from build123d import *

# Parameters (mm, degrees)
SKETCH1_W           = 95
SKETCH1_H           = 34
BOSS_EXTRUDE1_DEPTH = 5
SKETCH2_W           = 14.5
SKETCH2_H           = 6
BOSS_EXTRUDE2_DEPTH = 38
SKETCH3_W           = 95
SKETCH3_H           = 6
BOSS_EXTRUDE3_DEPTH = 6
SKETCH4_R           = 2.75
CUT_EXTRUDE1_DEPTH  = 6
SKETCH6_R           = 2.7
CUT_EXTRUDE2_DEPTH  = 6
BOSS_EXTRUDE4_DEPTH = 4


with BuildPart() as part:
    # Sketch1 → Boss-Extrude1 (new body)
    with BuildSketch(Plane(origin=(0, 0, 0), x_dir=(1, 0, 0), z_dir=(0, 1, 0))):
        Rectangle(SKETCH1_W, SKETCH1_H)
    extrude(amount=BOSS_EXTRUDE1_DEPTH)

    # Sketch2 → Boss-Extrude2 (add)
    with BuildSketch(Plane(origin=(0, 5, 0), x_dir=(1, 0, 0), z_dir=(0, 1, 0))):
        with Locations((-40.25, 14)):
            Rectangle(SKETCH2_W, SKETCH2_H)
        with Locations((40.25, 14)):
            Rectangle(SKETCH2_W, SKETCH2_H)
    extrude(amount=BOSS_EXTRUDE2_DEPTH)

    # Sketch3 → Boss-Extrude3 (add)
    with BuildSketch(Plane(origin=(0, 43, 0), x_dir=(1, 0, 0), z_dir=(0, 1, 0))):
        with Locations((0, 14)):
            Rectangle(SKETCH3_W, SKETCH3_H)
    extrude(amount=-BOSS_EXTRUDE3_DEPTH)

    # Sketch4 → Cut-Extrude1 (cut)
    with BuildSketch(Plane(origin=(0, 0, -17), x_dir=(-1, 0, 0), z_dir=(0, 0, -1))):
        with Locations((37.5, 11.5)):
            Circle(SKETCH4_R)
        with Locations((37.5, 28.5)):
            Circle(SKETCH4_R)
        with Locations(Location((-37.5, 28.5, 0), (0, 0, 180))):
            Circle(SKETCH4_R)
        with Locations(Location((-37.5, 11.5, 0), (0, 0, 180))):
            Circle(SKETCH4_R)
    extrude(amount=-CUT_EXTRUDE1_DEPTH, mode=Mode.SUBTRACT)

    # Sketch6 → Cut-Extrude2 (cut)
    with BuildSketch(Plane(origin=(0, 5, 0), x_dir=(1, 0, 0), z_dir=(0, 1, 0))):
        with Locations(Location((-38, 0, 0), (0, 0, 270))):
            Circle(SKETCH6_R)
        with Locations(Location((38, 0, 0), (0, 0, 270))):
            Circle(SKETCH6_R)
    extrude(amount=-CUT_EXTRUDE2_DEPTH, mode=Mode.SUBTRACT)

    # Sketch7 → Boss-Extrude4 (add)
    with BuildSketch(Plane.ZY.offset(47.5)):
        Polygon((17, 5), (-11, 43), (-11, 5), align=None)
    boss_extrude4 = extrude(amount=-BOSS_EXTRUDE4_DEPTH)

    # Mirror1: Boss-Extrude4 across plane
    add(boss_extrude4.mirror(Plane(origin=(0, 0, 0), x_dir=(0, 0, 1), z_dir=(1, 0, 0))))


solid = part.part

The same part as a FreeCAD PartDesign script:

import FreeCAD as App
import Part
import Sketcher
from FreeCAD import Vector
Q = App.Units.Quantity


def add_polygon(sketch, points):
    """Adds a closed chain of lines whose ends are joined by coincident constraints."""
    first, n = sketch.GeometryCount, len(points)
    for a, b in zip(points, points[1:] + points[:1]):
        sketch.addGeometry(Part.LineSegment(App.Vector(*a, 0), App.Vector(*b, 0)), False)
    for i in range(n):
        sketch.addConstraint(Sketcher.Constraint("Coincident", first + i, 2, first + (i + 1) % n, 1))

doc = App.newDocument("Part")
params = doc.addObject("Spreadsheet::Sheet", "Params")
for row, (alias, value) in enumerate([
    ("sketch1_width", "95 mm"),
    ("sketch1_height", "34 mm"),
    ("pad1_length", "5 mm"),
    ("sketch2_height", "6 mm"),
    ("sketch2_width", "14.5 mm"),
    ("pad2_length", "38 mm"),
    ("sketch3_width", "95 mm"),
    ("sketch3_height", "6 mm"),
    ("pad3_length", "6 mm"),
    ("sketch4_diameter", "5.5 mm"),
    ("pocket1_length", "6 mm"),
    ("sketch5_diameter", "5.4 mm"),
    ("pocket2_length", "6 mm"),
    ("sketch6_width", "38 mm"),
    ("sketch6_height", "28 mm"),
    ("pad4_length", "4 mm"),
], start=1):
    params.set(f"A{row}", alias)
    params.set(f"B{row}", "=" + value)
    params.setAlias(f"B{row}", alias)

body = doc.addObject("PartDesign::Body", "Body")

# Sketch on XZ plane
sketch1 = body.newObject("Sketcher::SketchObject", "Sketch")
sketch1.AttachmentSupport = (doc.getObject("XZ_Plane"), [""])
sketch1.MapMode = "FlatFace"
add_polygon(sketch1, [(-48, -17), (-48, 17), (48, 17), (48, -17)])  # lines 0-3
sketch1.addConstraint(Sketcher.Constraint("Vertical", 0))
sketch1.addConstraint(Sketcher.Constraint("Horizontal", 1))
sketch1.addConstraint(Sketcher.Constraint("Vertical", 2))
sketch1.addConstraint(Sketcher.Constraint("Horizontal", 3))
sketch1.addConstraint(Sketcher.Constraint("Symmetric", 0, 2, 2, 2, -1, 1))
sketch1.addConstraint(Sketcher.Constraint("DistanceX", 1, 1, 1, 2, Q("95 mm")))
sketch1.addConstraint(Sketcher.Constraint("DistanceY", 0, 1, 0, 2, Q("34 mm")))
sketch1.setExpression("Constraints[9]", "Params.sketch1_width")
sketch1.setExpression("Constraints[10]", "Params.sketch1_height")
pad1 = body.newObject("PartDesign::Pad", "Pad")
pad1.Profile = sketch1
pad1.setExpression("Length", "Params.pad1_length")
pad1.Reversed = True

# Sketch on XZ plane
sketch2 = body.newObject("Sketcher::SketchObject", "Sketch001")
sketch2.AttachmentSupport = (doc.getObject("XZ_Plane"), [""])
sketch2.MapMode = "FlatFace"
sketch2.AttachmentOffset = App.Placement(Vector(0, 0, -5), App.Rotation())
add_polygon(sketch2, [(-48, -17), (-48, -11), (-33, -11), (-33, -17)])  # lines 0-3
add_polygon(sketch2, [(33, -17), (33, -11), (48, -11), (48, -17)])  # lines 4-7
sketch2.addConstraint(Sketcher.Constraint("Vertical", 0))
sketch2.addConstraint(Sketcher.Constraint("Horizontal", 1))
sketch2.addConstraint(Sketcher.Constraint("Vertical", 2))
sketch2.addConstraint(Sketcher.Constraint("Horizontal", 3))
sketch2.addConstraint(Sketcher.Constraint("Vertical", 4))
sketch2.addConstraint(Sketcher.Constraint("Horizontal", 5))
sketch2.addConstraint(Sketcher.Constraint("Vertical", 6))
sketch2.addConstraint(Sketcher.Constraint("Horizontal", 7))
sketch2.addConstraint(Sketcher.Constraint("Symmetric", 1, 2, 4, 2, -2))
sketch2.addConstraint(Sketcher.Constraint("Symmetric", 3, 2, 6, 2, -2))
sketch2.addConstraint(Sketcher.Constraint("DistanceY", 0, 1, 0, 2, Q("6 mm")))
sketch2.addConstraint(Sketcher.Constraint("DistanceX", 1, 1, 1, 2, Q("14.5 mm")))
sketch2.addConstraint(Sketcher.Constraint("DistanceY", 0, 2, -1, 1, Q("11 mm")))
sketch2.addConstraint(Sketcher.Constraint("DistanceX", 1, 2, -1, 1, Q("33 mm")))
sketch2.setExpression("Constraints[18]", "Params.sketch2_height")
sketch2.setExpression("Constraints[19]", "Params.sketch2_width")
pad2 = body.newObject("PartDesign::Pad", "Pad001")
pad2.Profile = sketch2
pad2.setExpression("Length", "Params.pad2_length")
pad2.Reversed = True

# Sketch on XZ plane
sketch3 = body.newObject("Sketcher::SketchObject", "Sketch002")
sketch3.AttachmentSupport = (doc.getObject("XZ_Plane"), [""])
sketch3.MapMode = "FlatFace"
sketch3.AttachmentOffset = App.Placement(Vector(0, 0, -43), App.Rotation())
add_polygon(sketch3, [(-48, -17), (-48, -11), (48, -11), (48, -17)])  # lines 0-3
sketch3.addConstraint(Sketcher.Constraint("Vertical", 0))
sketch3.addConstraint(Sketcher.Constraint("Horizontal", 1))
sketch3.addConstraint(Sketcher.Constraint("Vertical", 2))
sketch3.addConstraint(Sketcher.Constraint("Horizontal", 3))
sketch3.addConstraint(Sketcher.Constraint("DistanceX", 1, 1, 1, 2, Q("95 mm")))
sketch3.addConstraint(Sketcher.Constraint("DistanceY", 0, 1, 0, 2, Q("6 mm")))
sketch3.addConstraint(Sketcher.Constraint("DistanceY", 0, 2, -1, 1, Q("11 mm")))
sketch3.addConstraint(Sketcher.Constraint("DistanceX", 0, 2, -1, 1, Q("47.5 mm")))
sketch3.setExpression("Constraints[8]", "Params.sketch3_width")
sketch3.setExpression("Constraints[9]", "Params.sketch3_height")
pad3 = body.newObject("PartDesign::Pad", "Pad002")
pad3.Profile = sketch3
pad3.setExpression("Length", "Params.pad3_length")

# Sketch on XY plane
sketch4 = body.newObject("Sketcher::SketchObject", "Sketch003")
sketch4.AttachmentSupport = (doc.getObject("XY_Plane"), [""])
sketch4.MapMode = "FlatFace"
sketch4.AttachmentOffset = App.Placement(Vector(0, 0, -17), App.Rotation())
sketch4.addGeometry(Part.Circle(Vector(-37.5, 11.5, 0), Vector(0, 0, 1), 2.8), False)
sketch4.addGeometry(Part.Circle(Vector(-37.5, 28.5, 0), Vector(0, 0, 1), 2.8), False)
sketch4.addGeometry(Part.Circle(Vector(37.5, 28.5, 0), Vector(0, 0, 1), 2.8), False)
sketch4.addGeometry(Part.Circle(Vector(37.5, 11.5, 0), Vector(0, 0, 1), 2.8), False)
sketch4.addConstraint(Sketcher.Constraint("Equal", 0, 1))
sketch4.addConstraint(Sketcher.Constraint("Equal", 1, 2))
sketch4.addConstraint(Sketcher.Constraint("Equal", 2, 3))
sketch4.addConstraint(Sketcher.Constraint("Symmetric", 1, 3, 2, 3, -2))
sketch4.addConstraint(Sketcher.Constraint("Symmetric", 0, 3, 3, 3, -2))
sketch4.addConstraint(Sketcher.Constraint("Vertical", 0, 3, 1, 3))
sketch4.addConstraint(Sketcher.Constraint("Diameter", 0, Q("5.5 mm")))
sketch4.addConstraint(Sketcher.Constraint("DistanceY", 0, 3, 1, 3, Q("17 mm")))
sketch4.addConstraint(Sketcher.Constraint("DistanceX", 1, 3, 2, 3, Q("75 mm")))
sketch4.addConstraint(Sketcher.Constraint("DistanceY", -1, 1, 0, 3, Q("11.5 mm")))
sketch4.setExpression("Constraints[6]", "Params.sketch4_diameter")
pocket1 = body.newObject("PartDesign::Pocket", "Pocket")
pocket1.Profile = sketch4
pocket1.setExpression("Length", "Params.pocket1_length")
pocket1.Reversed = True

# Sketch on XZ plane
sketch5 = body.newObject("Sketcher::SketchObject", "Sketch004")
sketch5.AttachmentSupport = (doc.getObject("XZ_Plane"), [""])
sketch5.MapMode = "FlatFace"
sketch5.AttachmentOffset = App.Placement(Vector(0, 0, -5), App.Rotation())
sketch5.addGeometry(Part.Circle(Vector(-38, 0, 0), Vector(0, 0, 1), 2.7), False)
sketch5.addGeometry(Part.Circle(Vector(38, 0, 0), Vector(0, 0, 1), 2.7), False)
sketch5.addConstraint(Sketcher.Constraint("Equal", 0, 1))
sketch5.addConstraint(Sketcher.Constraint("Symmetric", 0, 3, 1, 3, -1, 1))
sketch5.addConstraint(Sketcher.Constraint("PointOnObject", 0, 3, -1))
sketch5.addConstraint(Sketcher.Constraint("Diameter", 0, Q("5.4 mm")))
sketch5.addConstraint(Sketcher.Constraint("DistanceX", 0, 3, -1, 1, Q("38 mm")))
sketch5.setExpression("Constraints[3]", "Params.sketch5_diameter")
pocket2 = body.newObject("PartDesign::Pocket", "Pocket001")
pocket2.Profile = sketch5
pocket2.setExpression("Length", "Params.pocket2_length")
pocket2.Reversed = True

# Sketch on YZ plane
sketch6 = body.newObject("Sketcher::SketchObject", "Sketch005")
sketch6.AttachmentSupport = (doc.getObject("YZ_Plane"), [""])
sketch6.MapMode = "FlatFace"
sketch6.AttachmentOffset = App.Placement(Vector(0, 0, -47.5), App.Rotation())
add_polygon(sketch6, [(5, 17), (43, -11), (5, -11)])  # lines 0-2
sketch6.addConstraint(Sketcher.Constraint("Horizontal", 1))
sketch6.addConstraint(Sketcher.Constraint("Vertical", 2))
sketch6.addConstraint(Sketcher.Constraint("DistanceX", 1, 2, 1, 1, Q("38 mm")))
sketch6.addConstraint(Sketcher.Constraint("DistanceY", 2, 1, 2, 2, Q("28 mm")))
sketch6.addConstraint(Sketcher.Constraint("DistanceX", -1, 1, 0, 2, Q("43 mm")))
sketch6.addConstraint(Sketcher.Constraint("DistanceY", 0, 2, -1, 1, Q("11 mm")))
sketch6.setExpression("Constraints[5]", "Params.sketch6_width")
sketch6.setExpression("Constraints[6]", "Params.sketch6_height")
pad4 = body.newObject("PartDesign::Pad", "Pad003")
pad4.Profile = sketch6
pad4.setExpression("Length", "Params.pad4_length")
doc.recompute()

mirrored = body.newObject("PartDesign::Mirrored", "Mirrored")
mirrored.Originals = [pad4]
mirrored.MirrorPlane = (doc.getObject("YZ_Plane"), [""])
body.Tip = mirrored

doc.recompute()
